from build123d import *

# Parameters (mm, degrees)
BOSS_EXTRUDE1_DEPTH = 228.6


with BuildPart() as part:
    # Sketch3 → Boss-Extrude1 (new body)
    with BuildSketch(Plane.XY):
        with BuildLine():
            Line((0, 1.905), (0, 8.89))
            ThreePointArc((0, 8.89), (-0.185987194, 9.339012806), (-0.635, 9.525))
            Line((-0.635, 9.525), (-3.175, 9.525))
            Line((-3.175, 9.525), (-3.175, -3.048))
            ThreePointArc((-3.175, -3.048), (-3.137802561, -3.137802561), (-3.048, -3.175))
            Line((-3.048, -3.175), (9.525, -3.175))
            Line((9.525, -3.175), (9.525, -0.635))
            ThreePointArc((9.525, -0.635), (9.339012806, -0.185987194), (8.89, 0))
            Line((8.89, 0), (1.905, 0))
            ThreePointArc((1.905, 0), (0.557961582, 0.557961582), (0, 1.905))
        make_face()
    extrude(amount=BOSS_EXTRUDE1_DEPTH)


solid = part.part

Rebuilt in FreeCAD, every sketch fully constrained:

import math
import FreeCAD as App
import Part
import Sketcher
Q = App.Units.Quantity

doc = App.newDocument("Part")
body = doc.addObject("PartDesign::Body", "Body")

# Sketch on XY plane
sketch1 = body.newObject("Sketcher::SketchObject", "Sketch")
sketch1.AttachmentSupport = (doc.getObject("XY_Plane"), [""])
sketch1.MapMode = "FlatFace"
sketch1.addGeometry(Part.LineSegment(App.Vector(0, 1.91, 0), App.Vector(0, 8.89, 0)), False)
sketch1.addGeometry(Part.ArcOfCircle(Part.Circle(App.Vector(-0.64, 8.89, 0), App.Vector(0, 0, 1), 0.64), math.radians(0), math.radians(90)), False)
sketch1.addGeometry(Part.LineSegment(App.Vector(-0.64, 9.53, 0), App.Vector(-3.17, 9.53, 0)), False)
sketch1.addGeometry(Part.LineSegment(App.Vector(-3.17, 9.53, 0), App.Vector(-3.17, -3.05, 0)), False)
sketch1.addGeometry(Part.ArcOfCircle(Part.Circle(App.Vector(-3.05, -3.05, 0), App.Vector(0, 0, 1), 0.13), math.radians(-180), math.radians(-90)), False)
sketch1.addGeometry(Part.LineSegment(App.Vector(-3.05, -3.17, 0), App.Vector(9.53, -3.17, 0)), False)
sketch1.addGeometry(Part.LineSegment(App.Vector(9.53, -3.17, 0), App.Vector(9.53, -0.64, 0)), False)
sketch1.addGeometry(Part.ArcOfCircle(Part.Circle(App.Vector(8.89, -0.64, 0), App.Vector(0, 0, 1), 0.64), math.radians(0), math.radians(90)), False)
sketch1.addGeometry(Part.LineSegment(App.Vector(8.89, 0, 0), App.Vector(1.91, 0, 0)), False)
sketch1.addGeometry(Part.ArcOfCircle(Part.Circle(App.Vector(1.91, 1.91, 0), App.Vector(0, 0, 1), 1.91), math.radians(-180), math.radians(-90)), False)
sketch1.addConstraint(Sketcher.Constraint("Tangent", 0, 2, 1, 1))
sketch1.addConstraint(Sketcher.Constraint("Tangent", 1, 2, 2, 1))
sketch1.addConstraint(Sketcher.Constraint("Coincident", 2, 2, 3, 1))
sketch1.addConstraint(Sketcher.Constraint("Tangent", 3, 2, 4, 1))
sketch1.addConstraint(Sketcher.Constraint("Tangent", 4, 2, 5, 1))
sketch1.addConstraint(Sketcher.Constraint("Coincident", 5, 2, 6, 1))
sketch1.addConstraint(Sketcher.Constraint("Tangent", 6, 2, 7, 1))
sketch1.addConstraint(Sketcher.Constraint("Tangent", 7, 2, 8, 1))
sketch1.addConstraint(Sketcher.Constraint("Tangent", 8, 2, 9, 2))
sketch1.addConstraint(Sketcher.Constraint("Tangent", 9, 1, 0, 1))
sketch1.addConstraint(Sketcher.Constraint("Vertical", 0))
sketch1.addConstraint(Sketcher.Constraint("Horizontal", 2))
sketch1.addConstraint(Sketcher.Constraint("Vertical", 3))
sketch1.addConstraint(Sketcher.Constraint("Horizontal", 5))
sketch1.addConstraint(Sketcher.Constraint("Vertical", 6))
sketch1.addConstraint(Sketcher.Constraint("Horizontal", 8))
sketch1.addConstraint(Sketcher.Constraint("Equal", 1, 7))
sketch1.addConstraint(Sketcher.Constraint("PointOnObject", 0, 2, -2))
sketch1.addConstraint(Sketcher.Constraint("PointOnObject", 7, 2, -1))
sketch1.addConstraint(Sketcher.Constraint("Equal", 8, 0))
sketch1.addConstraint(Sketcher.Constraint("Equal", 5, 3))
sketch1.addConstraint(Sketcher.Constraint("DistanceX", 2, 2, 2, 1, Q("0.1 in")))
sketch1.addConstraint(Sketcher.Constraint("Radius", 1, Q("0.025 in")))
sketch1.addConstraint(Sketcher.Constraint("Radius", 4, Q("0.005 in")))
sketch1.addConstraint(Sketcher.Constraint("Radius", 9, Q("0.075 in")))
sketch1.addConstraint(Sketcher.Constraint("DistanceY", 9, 3, 1, 2, Q("0.3 in")))
pad1 = body.newObject("PartDesign::Pad", "Pad")
pad1.Profile = sketch1
pad1.Length = Q("9 in")

doc.recompute()
